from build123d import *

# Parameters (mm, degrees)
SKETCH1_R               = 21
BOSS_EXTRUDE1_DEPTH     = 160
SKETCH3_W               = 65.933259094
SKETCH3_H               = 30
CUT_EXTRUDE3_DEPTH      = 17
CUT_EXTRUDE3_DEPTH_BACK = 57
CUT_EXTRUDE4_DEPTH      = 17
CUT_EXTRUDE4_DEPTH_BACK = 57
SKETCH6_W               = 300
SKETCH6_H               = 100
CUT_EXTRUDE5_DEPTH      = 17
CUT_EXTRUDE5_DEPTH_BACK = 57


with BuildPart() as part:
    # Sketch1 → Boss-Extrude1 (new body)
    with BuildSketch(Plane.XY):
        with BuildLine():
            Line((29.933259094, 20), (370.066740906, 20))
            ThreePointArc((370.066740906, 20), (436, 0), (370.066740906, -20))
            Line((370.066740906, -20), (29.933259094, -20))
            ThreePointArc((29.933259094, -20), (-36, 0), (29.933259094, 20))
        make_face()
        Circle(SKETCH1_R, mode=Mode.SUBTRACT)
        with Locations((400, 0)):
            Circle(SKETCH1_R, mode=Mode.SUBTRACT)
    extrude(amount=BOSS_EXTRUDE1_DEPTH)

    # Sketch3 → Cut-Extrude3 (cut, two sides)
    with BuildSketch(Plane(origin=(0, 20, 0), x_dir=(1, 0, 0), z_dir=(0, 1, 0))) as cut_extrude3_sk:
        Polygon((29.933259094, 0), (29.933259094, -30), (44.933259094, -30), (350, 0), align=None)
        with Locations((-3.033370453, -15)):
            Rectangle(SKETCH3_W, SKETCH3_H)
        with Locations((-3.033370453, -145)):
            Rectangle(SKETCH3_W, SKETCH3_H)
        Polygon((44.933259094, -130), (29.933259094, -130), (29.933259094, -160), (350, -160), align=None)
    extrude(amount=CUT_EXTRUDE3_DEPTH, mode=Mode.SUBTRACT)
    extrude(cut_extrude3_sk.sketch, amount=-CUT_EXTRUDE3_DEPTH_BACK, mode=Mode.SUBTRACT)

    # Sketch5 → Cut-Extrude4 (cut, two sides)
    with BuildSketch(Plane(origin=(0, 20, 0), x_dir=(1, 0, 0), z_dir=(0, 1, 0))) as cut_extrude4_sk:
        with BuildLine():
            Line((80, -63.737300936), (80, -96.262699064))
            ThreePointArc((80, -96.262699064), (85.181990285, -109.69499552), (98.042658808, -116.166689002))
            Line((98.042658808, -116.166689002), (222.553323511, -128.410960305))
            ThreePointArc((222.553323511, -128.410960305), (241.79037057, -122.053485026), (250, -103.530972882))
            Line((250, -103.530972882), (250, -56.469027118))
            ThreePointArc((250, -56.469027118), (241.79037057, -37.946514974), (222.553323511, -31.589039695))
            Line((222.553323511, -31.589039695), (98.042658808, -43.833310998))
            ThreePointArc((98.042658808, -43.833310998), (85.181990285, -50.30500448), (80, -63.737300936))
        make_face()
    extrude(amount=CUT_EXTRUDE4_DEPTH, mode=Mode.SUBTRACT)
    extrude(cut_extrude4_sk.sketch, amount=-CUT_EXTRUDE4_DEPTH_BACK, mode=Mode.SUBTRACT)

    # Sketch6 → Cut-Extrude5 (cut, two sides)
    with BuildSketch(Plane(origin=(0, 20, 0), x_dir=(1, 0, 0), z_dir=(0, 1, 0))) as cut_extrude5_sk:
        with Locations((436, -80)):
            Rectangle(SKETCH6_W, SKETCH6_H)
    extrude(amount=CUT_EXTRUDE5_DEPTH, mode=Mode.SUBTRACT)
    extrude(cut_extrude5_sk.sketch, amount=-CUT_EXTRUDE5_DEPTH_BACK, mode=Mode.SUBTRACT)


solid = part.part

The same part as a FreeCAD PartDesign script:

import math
import FreeCAD as App
import Part
import Sketcher

V = App.Vector


def add_polygon(sketch, points):
    """Adds a closed chain of lines whose ends are joined by coincident constraints."""
    first, n = sketch.GeometryCount, len(points)
    for a, b in zip(points, points[1:] + points[:1]):
        sketch.addGeometry(Part.LineSegment(App.Vector(*a, 0), App.Vector(*b, 0)), False)
    for i in range(n):
        sketch.addConstraint(Sketcher.Constraint("Coincident", first + i, 2, first + (i + 1) % n, 1))

doc = App.newDocument("Part")
params = doc.addObject("Spreadsheet::Sheet", "Params")
for row, (alias, value) in enumerate([
    ("sketch1_diameter", "42 mm"),
    ("sketch1_radius", "36 mm"),
    ("pad1_length", "160 mm"),
    ("sketch2_width", "386 mm"),
    ("sketch2_height", "30 mm"),
    ("sketch3_radius", "20 mm"),
    ("sketch3_radius2", "25 mm"),
    ("sketch4_width", "300 mm"),
    ("sketch4_height", "100 mm"),
], start=1):
    params.set(f"A{row}", alias)
    params.set(f"B{row}", "=" + value)
    params.setAlias(f"B{row}", alias)

body = doc.addObject("PartDesign::Body", "Body")

# Sketch on XY plane
sketch1 = body.newObject("Sketcher::SketchObject", "Sketch")
sketch1.AttachmentSupport = (doc.getObject("XY_Plane"), [""])
sketch1.MapMode = "FlatFace"
sketch1.addGeometry([
    Part.LineSegment(V(370.066741, 20, 0), V(29.933259, 20, 0)),  # 0
    Part.ArcOfCircle(Part.Circle(V(0, 0, 0), V(0, 0, 1), 36), math.radians(33.748989), math.radians(326.251011)),  # 1
    Part.LineSegment(V(29.933259, -20, 0), V(370.066741, -20, 0)),  # 2
    Part.ArcOfCircle(Part.Circle(V(400, 0, 0), V(0, 0, 1), 36), math.radians(-146.251011), math.radians(146.251011)),  # 3
    Part.Circle(V(400, 0, 0), V(0, 0, 1), 21),  # 4
    Part.Circle(V(0, 0, 0), V(0, 0, 1), 21),  # 5
], False)
sketch1.addConstraint([
    Sketcher.Constraint("Coincident", 0, 2, 1, 1),
    Sketcher.Constraint("Coincident", 1, 2, 2, 1),
    Sketcher.Constraint("Coincident", 2, 2, 3, 1),
    Sketcher.Constraint("Coincident", 3, 2, 0, 1),
    Sketcher.Constraint("Horizontal", 0),
    Sketcher.Constraint("Horizontal", 2),
    Sketcher.Constraint("Coincident", 1, 3, -1, 1),
    Sketcher.Constraint("Coincident", 5, 3, -1, 1),
    Sketcher.Constraint("Coincident", 4, 3, 3, 3),
    Sketcher.Constraint("Equal", 1, 3),
    Sketcher.Constraint("Equal", 4, 5),
    Sketcher.Constraint("Symmetric", 2, 2, 3, 2, -1),
    Sketcher.Constraint("Diameter", 4, 42.0),
    Sketcher.Constraint("Radius", 1, 36.0),
    Sketcher.Constraint("DistanceX", -1, 1, 3, 3, 400.0),
    Sketcher.Constraint("DistanceY", -1, 1, 0, 2, 20.0),
])
sketch1.setExpression("Constraints[12]", "Params.sketch1_diameter")
sketch1.setExpression("Constraints[13]", "Params.sketch1_radius")
pad1 = body.newObject("PartDesign::Pad", "Pad")
pad1.Profile = sketch1
pad1.setExpression("Length", "Params.pad1_length")

# Sketch on XZ plane
sketch2 = body.newObject("Sketcher::SketchObject", "Sketch001")
sketch2.AttachmentSupport = (doc.getObject("XZ_Plane"), [""])
sketch2.MapMode = "FlatFace"
sketch2.AttachmentOffset = App.Placement(V(0, 0, -20), App.Rotation())
add_polygon(sketch2, [(44.933259, 30), (350, 0), (-36, 0), (-36, 30)])  # lines 0-3
add_polygon(sketch2, [(-36, 130), (-36, 160), (350, 160), (44.933259, 130)])  # lines 4-7
sketch2.addConstraint([
    Sketcher.Constraint("Horizontal", 1),
    Sketcher.Constraint("Vertical", 2),
    Sketcher.Constraint("Horizontal", 3),
    Sketcher.Constraint("Vertical", 4),
    Sketcher.Constraint("Horizontal", 5),
    Sketcher.Constraint("Horizontal", 7),
    Sketcher.Constraint("PointOnObject", 0, 2, -1),
    Sketcher.Constraint("Vertical", 2, 2, 4, 2),
    Sketcher.Constraint("Vertical", 0, 2, 5, 2),
    Sketcher.Constraint("Vertical", 3, 2, 6, 2),
    Sketcher.Constraint("Equal", 2, 4),
    Sketcher.Constraint("DistanceX", 1, 2, 1, 1, 386.0),
    Sketcher.Constraint("DistanceY", 2, 1, 2, 2, 30.0),
    Sketcher.Constraint("DistanceX", -1, 1, 0, 2, 350.0),
    Sketcher.Constraint("DistanceY", -1, 1, 4, 2, 160.0),
    Sketcher.Constraint("DistanceX", 3, 1, 3, 2, 80.933259),
])
sketch2.setExpression("Constraints[19]", "Params.sketch2_width")
sketch2.setExpression("Constraints[20]", "Params.sketch2_height")
pocket1 = body.newObject("PartDesign::Pocket", "Pocket")
pocket1.Profile = sketch2
pocket1.Type = "ThroughAll"
pocket1.Midplane = True

# Sketch on XZ plane
sketch3 = body.newObject("Sketcher::SketchObject", "Sketch002")
sketch3.AttachmentSupport = (doc.getObject("XZ_Plane"), [""])
sketch3.MapMode = "FlatFace"
sketch3.AttachmentOffset = App.Placement(V(0, 0, -20), App.Rotation())
sketch3.addGeometry([
    Part.LineSegment(V(80, 63.737301, 0), V(80, 96.262699, 0)),  # 0
    Part.ArcOfCircle(Part.Circle(V(100, 96.262699, 0), V(0, 0, 1), 20), math.radians(95.616359), math.radians(180)),  # 1
    Part.LineSegment(V(98.042659, 116.166689, 0), V(222.553324, 128.41096, 0)),  # 2
    Part.ArcOfCircle(Part.Circle(V(225, 103.530973, 0), V(0, 0, 1), 25), math.radians(0), math.radians(95.616359)),  # 3
    Part.LineSegment(V(250, 103.530973, 0), V(250, 56.469027, 0)),  # 4
    Part.ArcOfCircle(Part.Circle(V(225, 56.469027, 0), V(0, 0, 1), 25), math.radians(-95.616359), math.radians(0)),  # 5
    Part.LineSegment(V(222.553324, 31.58904, 0), V(98.042659, 43.833311, 0)),  # 6
    Part.ArcOfCircle(Part.Circle(V(100, 63.737301, 0), V(0, 0, 1), 20), math.radians(180), math.radians(264.383641)),  # 7
], False)
sketch3.addConstraint([
    Sketcher.Constraint("Tangent", 0, 2, 1, 2),
    Sketcher.Constraint("Tangent", 1, 1, 2, 1),
    Sketcher.Constraint("Tangent", 2, 2, 3, 2),
    Sketcher.Constraint("Tangent", 3, 1, 4, 1),
    Sketcher.Constraint("Tangent", 4, 2, 5, 2),
    Sketcher.Constraint("Tangent", 5, 1, 6, 1),
    Sketcher.Constraint("Tangent", 6, 2, 7, 2),
    Sketcher.Constraint("Tangent", 7, 1, 0, 1),
    Sketcher.Constraint("Vertical", 0),
    Sketcher.Constraint("Vertical", 4),
    Sketcher.Constraint("Equal", 3, 5),
    Sketcher.Constraint("Equal", 1, 7),
    Sketcher.Constraint("Vertical", 2, 2, 5, 1),
    Sketcher.Constraint("Radius", 1, 20.0),
    Sketcher.Constraint("Radius", 3, 25.0),
    Sketcher.Constraint("DistanceX", -1, 1, 1, 3, 100.0),
    Sketcher.Constraint("DistanceX", -1, 1, 3, 3, 225.0),
    Sketcher.Constraint("DistanceY", 0, 1, 0, 2, 32.525398),
    Sketcher.Constraint("DistanceY", -1, 1, 1, 3, 96.262699),
    Sketcher.Constraint("Distance", 2, 125.111262),
])
sketch3.setExpression("Constraints[13]", "Params.sketch3_radius")
sketch3.setExpression("Constraints[14]", "Params.sketch3_radius2")
pocket2 = body.newObject("PartDesign::Pocket", "Pocket001")
pocket2.Profile = sketch3
pocket2.Type = "ThroughAll"
pocket2.Midplane = True

# Sketch on XZ plane
sketch4 = body.newObject("Sketcher::SketchObject", "Sketch003")
sketch4.AttachmentSupport = (doc.getObject("XZ_Plane"), [""])
sketch4.MapMode = "FlatFace"
sketch4.AttachmentOffset = App.Placement(V(0, 0, -20), App.Rotation())
add_polygon(sketch4, [(286, 30), (286, 130), (586, 130), (586, 30)])  # lines 0-3
sketch4.addConstraint([
    Sketcher.Constraint("Vertical", 0),
    Sketcher.Constraint("Horizontal", 1),
    Sketcher.Constraint("Vertical", 2),
    Sketcher.Constraint("Horizontal", 3),
    Sketcher.Constraint("DistanceX", 1, 1, 1, 2, 300.0),
    Sketcher.Constraint("DistanceY", 0, 1, 0, 2, 100.0),
    Sketcher.Constraint("DistanceX", -1, 1, 0, 2, 286.0),
    Sketcher.Constraint("DistanceY", -1, 1, 0, 2, 130.0),
])
sketch4.setExpression("Constraints[8]", "Params.sketch4_width")
sketch4.setExpression("Constraints[9]", "Params.sketch4_height")
pocket3 = body.newObject("PartDesign::Pocket", "Pocket002")
pocket3.Profile = sketch4
pocket3.Type = "ThroughAll"
pocket3.Midplane = True

doc.recompute()
